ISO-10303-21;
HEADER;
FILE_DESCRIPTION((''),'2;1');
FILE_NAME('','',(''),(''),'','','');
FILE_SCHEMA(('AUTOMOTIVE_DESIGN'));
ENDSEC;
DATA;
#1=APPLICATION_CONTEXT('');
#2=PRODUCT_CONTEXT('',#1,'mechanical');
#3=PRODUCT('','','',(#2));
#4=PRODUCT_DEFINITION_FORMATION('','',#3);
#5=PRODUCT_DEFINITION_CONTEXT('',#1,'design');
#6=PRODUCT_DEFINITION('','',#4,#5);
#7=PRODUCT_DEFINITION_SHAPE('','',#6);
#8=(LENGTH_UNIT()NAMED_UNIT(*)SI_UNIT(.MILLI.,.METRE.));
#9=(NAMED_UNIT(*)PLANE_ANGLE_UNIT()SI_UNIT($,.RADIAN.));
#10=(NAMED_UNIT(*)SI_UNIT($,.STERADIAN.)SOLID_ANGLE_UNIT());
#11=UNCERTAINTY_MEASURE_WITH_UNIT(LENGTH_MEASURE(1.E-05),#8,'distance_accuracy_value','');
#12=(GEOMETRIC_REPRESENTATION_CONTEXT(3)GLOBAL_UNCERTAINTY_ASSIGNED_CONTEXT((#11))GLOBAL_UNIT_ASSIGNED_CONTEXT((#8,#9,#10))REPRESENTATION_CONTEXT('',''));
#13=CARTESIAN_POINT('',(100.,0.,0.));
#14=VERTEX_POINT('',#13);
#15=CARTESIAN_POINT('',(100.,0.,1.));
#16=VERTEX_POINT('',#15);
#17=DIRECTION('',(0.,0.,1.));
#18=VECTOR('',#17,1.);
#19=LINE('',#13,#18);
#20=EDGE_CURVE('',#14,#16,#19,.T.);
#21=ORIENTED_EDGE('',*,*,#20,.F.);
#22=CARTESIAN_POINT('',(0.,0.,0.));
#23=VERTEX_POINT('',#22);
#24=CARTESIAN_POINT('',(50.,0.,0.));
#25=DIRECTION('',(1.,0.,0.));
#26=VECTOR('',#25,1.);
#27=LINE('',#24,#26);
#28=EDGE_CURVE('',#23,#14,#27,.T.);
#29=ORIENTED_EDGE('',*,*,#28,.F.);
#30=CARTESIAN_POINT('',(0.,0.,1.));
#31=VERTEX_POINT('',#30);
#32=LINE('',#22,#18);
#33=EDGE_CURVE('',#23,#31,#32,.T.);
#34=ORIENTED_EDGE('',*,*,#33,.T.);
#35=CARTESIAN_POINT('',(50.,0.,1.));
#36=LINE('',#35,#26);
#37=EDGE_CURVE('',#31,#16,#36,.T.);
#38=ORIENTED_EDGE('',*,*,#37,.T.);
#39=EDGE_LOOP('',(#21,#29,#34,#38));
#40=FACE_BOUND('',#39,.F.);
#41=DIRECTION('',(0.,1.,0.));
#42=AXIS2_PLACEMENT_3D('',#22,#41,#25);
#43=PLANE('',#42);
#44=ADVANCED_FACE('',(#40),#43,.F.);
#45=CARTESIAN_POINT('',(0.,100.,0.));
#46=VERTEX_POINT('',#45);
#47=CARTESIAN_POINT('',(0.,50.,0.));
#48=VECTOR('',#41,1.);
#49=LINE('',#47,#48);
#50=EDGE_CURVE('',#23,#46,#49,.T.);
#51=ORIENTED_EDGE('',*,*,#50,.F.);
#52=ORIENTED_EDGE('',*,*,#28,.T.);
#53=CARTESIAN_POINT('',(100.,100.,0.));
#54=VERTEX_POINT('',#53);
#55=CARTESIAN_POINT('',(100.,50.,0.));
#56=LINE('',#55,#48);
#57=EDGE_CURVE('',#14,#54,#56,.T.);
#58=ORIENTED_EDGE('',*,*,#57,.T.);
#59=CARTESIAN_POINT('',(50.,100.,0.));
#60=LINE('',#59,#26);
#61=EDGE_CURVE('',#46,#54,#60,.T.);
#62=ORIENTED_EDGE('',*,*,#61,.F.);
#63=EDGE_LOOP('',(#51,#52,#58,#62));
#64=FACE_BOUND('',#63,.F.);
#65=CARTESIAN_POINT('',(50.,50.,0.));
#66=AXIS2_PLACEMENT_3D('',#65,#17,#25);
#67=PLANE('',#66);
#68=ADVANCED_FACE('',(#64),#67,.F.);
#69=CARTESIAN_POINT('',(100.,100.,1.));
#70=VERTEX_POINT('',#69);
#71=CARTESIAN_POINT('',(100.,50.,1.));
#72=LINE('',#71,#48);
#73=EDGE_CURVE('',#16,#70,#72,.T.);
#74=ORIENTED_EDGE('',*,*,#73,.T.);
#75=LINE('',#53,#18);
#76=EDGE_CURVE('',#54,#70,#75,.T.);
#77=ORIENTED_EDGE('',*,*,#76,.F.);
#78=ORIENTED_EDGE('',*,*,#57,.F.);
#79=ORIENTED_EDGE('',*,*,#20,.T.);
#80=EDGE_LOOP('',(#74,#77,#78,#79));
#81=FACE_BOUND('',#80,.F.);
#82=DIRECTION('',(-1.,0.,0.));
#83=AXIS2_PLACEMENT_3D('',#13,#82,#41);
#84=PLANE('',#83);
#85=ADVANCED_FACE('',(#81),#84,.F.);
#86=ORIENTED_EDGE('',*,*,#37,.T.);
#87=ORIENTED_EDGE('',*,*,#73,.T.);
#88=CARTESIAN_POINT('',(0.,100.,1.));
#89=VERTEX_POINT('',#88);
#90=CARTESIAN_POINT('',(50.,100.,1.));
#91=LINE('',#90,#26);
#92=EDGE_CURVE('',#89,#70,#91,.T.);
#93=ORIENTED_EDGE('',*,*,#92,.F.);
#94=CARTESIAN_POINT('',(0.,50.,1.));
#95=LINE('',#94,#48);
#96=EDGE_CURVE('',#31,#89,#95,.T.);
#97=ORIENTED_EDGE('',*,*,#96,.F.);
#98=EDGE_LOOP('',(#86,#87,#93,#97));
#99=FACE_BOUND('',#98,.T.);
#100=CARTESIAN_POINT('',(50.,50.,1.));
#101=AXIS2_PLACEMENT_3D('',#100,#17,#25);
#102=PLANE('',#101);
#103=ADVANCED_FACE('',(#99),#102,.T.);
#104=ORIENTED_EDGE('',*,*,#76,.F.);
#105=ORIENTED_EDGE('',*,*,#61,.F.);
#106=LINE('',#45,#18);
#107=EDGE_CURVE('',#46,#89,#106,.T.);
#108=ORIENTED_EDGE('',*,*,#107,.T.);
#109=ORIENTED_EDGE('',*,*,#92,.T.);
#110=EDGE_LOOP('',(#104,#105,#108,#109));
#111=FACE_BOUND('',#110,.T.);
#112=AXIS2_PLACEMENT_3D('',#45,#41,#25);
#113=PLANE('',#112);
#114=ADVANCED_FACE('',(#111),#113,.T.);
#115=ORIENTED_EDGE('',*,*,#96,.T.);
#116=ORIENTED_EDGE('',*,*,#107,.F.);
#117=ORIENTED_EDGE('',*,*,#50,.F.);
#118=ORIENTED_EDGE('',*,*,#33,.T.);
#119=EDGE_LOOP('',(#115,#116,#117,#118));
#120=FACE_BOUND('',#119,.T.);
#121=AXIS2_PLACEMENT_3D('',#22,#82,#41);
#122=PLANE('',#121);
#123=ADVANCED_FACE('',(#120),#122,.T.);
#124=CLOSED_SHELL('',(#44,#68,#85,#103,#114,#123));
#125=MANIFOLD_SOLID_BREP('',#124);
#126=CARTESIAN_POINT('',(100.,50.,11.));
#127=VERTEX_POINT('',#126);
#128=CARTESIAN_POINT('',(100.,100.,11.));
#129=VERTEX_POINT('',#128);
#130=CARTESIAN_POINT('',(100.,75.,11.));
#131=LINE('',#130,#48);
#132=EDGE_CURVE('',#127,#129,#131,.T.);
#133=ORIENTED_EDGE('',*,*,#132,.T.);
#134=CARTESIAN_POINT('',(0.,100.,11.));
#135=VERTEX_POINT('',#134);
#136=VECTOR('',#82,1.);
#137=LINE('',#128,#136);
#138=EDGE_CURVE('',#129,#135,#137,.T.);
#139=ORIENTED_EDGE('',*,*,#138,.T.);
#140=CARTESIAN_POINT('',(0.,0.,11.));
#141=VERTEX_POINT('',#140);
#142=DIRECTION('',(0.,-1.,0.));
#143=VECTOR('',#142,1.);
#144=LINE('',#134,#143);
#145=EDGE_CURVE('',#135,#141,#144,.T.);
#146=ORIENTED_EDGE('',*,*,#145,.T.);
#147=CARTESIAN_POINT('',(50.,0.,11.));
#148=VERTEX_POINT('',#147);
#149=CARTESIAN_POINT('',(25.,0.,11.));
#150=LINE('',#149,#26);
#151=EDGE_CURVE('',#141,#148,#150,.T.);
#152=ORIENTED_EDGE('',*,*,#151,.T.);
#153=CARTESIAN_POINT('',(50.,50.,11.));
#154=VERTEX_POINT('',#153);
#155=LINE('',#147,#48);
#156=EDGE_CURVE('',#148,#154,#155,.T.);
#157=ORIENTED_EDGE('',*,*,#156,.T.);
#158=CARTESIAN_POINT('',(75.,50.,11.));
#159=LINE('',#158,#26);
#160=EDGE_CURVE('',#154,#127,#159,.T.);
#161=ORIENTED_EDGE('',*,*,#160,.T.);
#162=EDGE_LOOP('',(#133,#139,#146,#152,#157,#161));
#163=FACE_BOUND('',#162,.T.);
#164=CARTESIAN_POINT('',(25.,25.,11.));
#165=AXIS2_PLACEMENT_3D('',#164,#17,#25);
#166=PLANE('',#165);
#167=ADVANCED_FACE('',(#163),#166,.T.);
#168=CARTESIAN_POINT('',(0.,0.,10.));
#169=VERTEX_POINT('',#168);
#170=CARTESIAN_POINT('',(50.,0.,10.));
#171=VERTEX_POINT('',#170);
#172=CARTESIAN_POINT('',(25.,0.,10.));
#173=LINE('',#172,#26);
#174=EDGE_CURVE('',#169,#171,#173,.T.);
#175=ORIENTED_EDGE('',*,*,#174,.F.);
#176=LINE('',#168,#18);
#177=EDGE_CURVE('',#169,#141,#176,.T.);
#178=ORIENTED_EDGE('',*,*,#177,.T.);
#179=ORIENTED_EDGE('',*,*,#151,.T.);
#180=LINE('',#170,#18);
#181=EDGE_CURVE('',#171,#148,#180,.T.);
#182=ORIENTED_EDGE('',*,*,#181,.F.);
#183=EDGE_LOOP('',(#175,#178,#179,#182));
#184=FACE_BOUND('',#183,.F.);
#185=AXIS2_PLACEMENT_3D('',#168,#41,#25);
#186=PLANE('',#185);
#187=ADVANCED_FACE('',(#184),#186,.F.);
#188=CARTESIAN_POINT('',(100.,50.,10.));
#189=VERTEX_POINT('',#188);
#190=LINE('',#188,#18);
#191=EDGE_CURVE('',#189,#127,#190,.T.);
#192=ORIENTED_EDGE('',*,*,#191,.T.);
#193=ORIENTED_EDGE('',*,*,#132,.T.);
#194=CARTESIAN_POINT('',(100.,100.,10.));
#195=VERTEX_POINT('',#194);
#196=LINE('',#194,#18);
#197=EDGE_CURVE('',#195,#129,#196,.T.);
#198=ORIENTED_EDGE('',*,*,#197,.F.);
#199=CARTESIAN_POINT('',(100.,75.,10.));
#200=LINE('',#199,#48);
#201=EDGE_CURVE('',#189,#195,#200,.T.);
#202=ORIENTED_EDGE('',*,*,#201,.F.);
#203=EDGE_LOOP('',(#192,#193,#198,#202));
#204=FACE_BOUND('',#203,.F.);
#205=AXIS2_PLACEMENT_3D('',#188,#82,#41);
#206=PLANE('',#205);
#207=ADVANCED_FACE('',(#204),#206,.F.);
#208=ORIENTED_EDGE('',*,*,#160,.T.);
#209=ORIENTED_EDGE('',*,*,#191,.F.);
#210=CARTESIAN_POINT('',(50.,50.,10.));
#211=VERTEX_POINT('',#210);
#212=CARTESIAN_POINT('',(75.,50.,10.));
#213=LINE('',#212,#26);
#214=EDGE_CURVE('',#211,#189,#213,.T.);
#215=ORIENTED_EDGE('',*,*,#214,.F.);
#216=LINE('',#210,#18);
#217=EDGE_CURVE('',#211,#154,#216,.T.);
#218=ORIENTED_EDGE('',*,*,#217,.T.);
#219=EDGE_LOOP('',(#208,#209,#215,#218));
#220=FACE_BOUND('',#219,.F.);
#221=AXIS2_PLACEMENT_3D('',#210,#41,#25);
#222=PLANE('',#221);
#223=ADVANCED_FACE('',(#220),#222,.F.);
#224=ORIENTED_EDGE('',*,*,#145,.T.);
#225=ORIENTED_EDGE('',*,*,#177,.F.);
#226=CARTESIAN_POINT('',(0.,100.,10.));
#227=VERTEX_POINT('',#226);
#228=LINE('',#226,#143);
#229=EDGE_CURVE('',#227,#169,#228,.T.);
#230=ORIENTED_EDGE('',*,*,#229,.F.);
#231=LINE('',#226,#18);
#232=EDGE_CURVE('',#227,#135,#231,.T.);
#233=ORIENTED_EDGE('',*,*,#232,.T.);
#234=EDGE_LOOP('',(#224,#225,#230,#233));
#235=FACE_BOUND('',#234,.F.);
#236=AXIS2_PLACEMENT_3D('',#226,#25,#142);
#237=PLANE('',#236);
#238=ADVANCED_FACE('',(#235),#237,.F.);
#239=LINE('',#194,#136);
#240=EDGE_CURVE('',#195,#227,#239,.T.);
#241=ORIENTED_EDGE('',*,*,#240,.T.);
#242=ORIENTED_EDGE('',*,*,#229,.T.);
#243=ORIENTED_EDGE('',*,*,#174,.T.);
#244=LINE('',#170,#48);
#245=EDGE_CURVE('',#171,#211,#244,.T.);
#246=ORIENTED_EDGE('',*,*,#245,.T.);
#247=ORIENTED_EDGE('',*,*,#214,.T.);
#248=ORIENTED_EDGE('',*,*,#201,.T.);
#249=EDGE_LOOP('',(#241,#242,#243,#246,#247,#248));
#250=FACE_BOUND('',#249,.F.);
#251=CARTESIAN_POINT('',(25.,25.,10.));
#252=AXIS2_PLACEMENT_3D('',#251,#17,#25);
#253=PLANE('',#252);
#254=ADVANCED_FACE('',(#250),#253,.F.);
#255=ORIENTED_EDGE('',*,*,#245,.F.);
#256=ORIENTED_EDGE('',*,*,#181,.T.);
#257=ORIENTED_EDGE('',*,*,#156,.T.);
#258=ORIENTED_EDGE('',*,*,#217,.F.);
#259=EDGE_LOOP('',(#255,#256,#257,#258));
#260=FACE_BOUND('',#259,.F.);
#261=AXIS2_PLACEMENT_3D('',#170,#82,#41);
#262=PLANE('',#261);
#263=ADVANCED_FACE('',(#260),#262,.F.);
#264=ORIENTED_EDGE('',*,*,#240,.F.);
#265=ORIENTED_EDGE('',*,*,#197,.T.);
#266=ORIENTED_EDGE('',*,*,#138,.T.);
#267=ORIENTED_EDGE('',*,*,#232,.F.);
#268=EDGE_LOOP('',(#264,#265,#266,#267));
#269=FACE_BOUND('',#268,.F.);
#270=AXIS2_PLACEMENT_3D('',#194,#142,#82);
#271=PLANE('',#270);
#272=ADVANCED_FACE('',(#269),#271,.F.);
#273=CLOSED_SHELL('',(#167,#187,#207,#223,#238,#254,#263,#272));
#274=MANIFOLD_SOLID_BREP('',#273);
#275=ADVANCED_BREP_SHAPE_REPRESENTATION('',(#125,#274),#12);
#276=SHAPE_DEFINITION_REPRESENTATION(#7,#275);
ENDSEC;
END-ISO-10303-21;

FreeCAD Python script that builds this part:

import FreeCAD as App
import Part
import Sketcher

V = App.Vector
Q = App.Units.Quantity

doc = App.newDocument("Part")
body = doc.addObject("PartDesign::Body", "Body")

# Sketch on XY plane
sketch1 = body.newObject("Sketcher::SketchObject", "Sketch")
sketch1.AttachmentSupport = (doc.getObject("XY_Plane"), [""])
sketch1.MapMode = "FlatFace"
sketch1.addGeometry(Part.LineSegment(V(0, 100, 0), V(0, 0, 0)), False)
sketch1.addGeometry(Part.LineSegment(V(0, 0, 0), V(100, 0, 0)), False)
sketch1.addGeometry(Part.LineSegment(V(100, 0, 0), V(100, 100, 0)), False)
sketch1.addGeometry(Part.LineSegment(V(100, 100, 0), V(0, 100, 0)), False)
sketch1.addConstraint(Sketcher.Constraint("Coincident", 0, 2, 1, 1))
sketch1.addConstraint(Sketcher.Constraint("Coincident", 1, 2, 2, 1))
sketch1.addConstraint(Sketcher.Constraint("Coincident", 2, 2, 3, 1))
sketch1.addConstraint(Sketcher.Constraint("Coincident", 3, 2, 0, 1))
sketch1.addConstraint(Sketcher.Constraint("Vertical", 0))
sketch1.addConstraint(Sketcher.Constraint("Horizontal", 1))
sketch1.addConstraint(Sketcher.Constraint("Vertical", 2))
sketch1.addConstraint(Sketcher.Constraint("Horizontal", 3))
sketch1.addConstraint(Sketcher.Constraint("Coincident", 0, 2, -1, 1))
sketch1.addConstraint(Sketcher.Constraint("Equal", 3, 0))
sketch1.addConstraint(Sketcher.Constraint("DistanceX", 1, 1, 1, 2, Q("100 mm")))
pad1 = body.newObject("PartDesign::Pad", "Pad")
pad1.Profile = sketch1
pad1.Length = 1
body2 = doc.addObject("PartDesign::Body", "Body001")

# Sketch on XY plane
sketch2 = body2.newObject("Sketcher::SketchObject", "Sketch001")
sketch2.AttachmentSupport = (doc.getObject("XY_Plane001"), [""])
sketch2.MapMode = "FlatFace"
sketch2.AttachmentOffset = App.Placement(V(0, 0, 10), App.Rotation())
sketch2.addGeometry(Part.LineSegment(V(0, 0, 0), V(50, 0, 0)), False)
sketch2.addGeometry(Part.LineSegment(V(50, 0, 0), V(50, 50, 0)), False)
sketch2.addGeometry(Part.LineSegment(V(50, 50, 0), V(100, 50, 0)), False)
sketch2.addGeometry(Part.LineSegment(V(100, 50, 0), V(100, 100, 0)), False)
sketch2.addGeometry(Part.LineSegment(V(100, 100, 0), V(0, 100, 0)), False)
sketch2.addGeometry(Part.LineSegment(V(0, 100, 0), V(0, 0, 0)), False)
sketch2.addConstraint(Sketcher.Constraint("Coincident", 0, 2, 1, 1))
sketch2.addConstraint(Sketcher.Constraint("Coincident", 1, 2, 2, 1))
sketch2.addConstraint(Sketcher.Constraint("Coincident", 2, 2, 3, 1))
sketch2.addConstraint(Sketcher.Constraint("Coincident", 3, 2, 4, 1))
sketch2.addConstraint(Sketcher.Constraint("Coincident", 4, 2, 5, 1))
sketch2.addConstraint(Sketcher.Constraint("Coincident", 5, 2, 0, 1))
sketch2.addConstraint(Sketcher.Constraint("Horizontal", 0))
sketch2.addConstraint(Sketcher.Constraint("Vertical", 1))
sketch2.addConstraint(Sketcher.Constraint("Horizontal", 2))
sketch2.addConstraint(Sketcher.Constraint("Vertical", 3))
sketch2.addConstraint(Sketcher.Constraint("Horizontal", 4))
sketch2.addConstraint(Sketcher.Constraint("Vertical", 5))
sketch2.addConstraint(Sketcher.Constraint("Coincident", 5, 2, -1, 1))
sketch2.addConstraint(Sketcher.Constraint("Equal", 0, 2))
sketch2.addConstraint(Sketcher.Constraint("Equal", 2, 1))
sketch2.addConstraint(Sketcher.Constraint("Equal", 1, 3))
sketch2.addConstraint(Sketcher.Constraint("DistanceX", 0, 1, 0, 2, Q("50 mm")))
pad2 = body2.newObject("PartDesign::Pad", "Pad001")
pad2.Profile = sketch2
pad2.Length = 1

doc.recompute()
